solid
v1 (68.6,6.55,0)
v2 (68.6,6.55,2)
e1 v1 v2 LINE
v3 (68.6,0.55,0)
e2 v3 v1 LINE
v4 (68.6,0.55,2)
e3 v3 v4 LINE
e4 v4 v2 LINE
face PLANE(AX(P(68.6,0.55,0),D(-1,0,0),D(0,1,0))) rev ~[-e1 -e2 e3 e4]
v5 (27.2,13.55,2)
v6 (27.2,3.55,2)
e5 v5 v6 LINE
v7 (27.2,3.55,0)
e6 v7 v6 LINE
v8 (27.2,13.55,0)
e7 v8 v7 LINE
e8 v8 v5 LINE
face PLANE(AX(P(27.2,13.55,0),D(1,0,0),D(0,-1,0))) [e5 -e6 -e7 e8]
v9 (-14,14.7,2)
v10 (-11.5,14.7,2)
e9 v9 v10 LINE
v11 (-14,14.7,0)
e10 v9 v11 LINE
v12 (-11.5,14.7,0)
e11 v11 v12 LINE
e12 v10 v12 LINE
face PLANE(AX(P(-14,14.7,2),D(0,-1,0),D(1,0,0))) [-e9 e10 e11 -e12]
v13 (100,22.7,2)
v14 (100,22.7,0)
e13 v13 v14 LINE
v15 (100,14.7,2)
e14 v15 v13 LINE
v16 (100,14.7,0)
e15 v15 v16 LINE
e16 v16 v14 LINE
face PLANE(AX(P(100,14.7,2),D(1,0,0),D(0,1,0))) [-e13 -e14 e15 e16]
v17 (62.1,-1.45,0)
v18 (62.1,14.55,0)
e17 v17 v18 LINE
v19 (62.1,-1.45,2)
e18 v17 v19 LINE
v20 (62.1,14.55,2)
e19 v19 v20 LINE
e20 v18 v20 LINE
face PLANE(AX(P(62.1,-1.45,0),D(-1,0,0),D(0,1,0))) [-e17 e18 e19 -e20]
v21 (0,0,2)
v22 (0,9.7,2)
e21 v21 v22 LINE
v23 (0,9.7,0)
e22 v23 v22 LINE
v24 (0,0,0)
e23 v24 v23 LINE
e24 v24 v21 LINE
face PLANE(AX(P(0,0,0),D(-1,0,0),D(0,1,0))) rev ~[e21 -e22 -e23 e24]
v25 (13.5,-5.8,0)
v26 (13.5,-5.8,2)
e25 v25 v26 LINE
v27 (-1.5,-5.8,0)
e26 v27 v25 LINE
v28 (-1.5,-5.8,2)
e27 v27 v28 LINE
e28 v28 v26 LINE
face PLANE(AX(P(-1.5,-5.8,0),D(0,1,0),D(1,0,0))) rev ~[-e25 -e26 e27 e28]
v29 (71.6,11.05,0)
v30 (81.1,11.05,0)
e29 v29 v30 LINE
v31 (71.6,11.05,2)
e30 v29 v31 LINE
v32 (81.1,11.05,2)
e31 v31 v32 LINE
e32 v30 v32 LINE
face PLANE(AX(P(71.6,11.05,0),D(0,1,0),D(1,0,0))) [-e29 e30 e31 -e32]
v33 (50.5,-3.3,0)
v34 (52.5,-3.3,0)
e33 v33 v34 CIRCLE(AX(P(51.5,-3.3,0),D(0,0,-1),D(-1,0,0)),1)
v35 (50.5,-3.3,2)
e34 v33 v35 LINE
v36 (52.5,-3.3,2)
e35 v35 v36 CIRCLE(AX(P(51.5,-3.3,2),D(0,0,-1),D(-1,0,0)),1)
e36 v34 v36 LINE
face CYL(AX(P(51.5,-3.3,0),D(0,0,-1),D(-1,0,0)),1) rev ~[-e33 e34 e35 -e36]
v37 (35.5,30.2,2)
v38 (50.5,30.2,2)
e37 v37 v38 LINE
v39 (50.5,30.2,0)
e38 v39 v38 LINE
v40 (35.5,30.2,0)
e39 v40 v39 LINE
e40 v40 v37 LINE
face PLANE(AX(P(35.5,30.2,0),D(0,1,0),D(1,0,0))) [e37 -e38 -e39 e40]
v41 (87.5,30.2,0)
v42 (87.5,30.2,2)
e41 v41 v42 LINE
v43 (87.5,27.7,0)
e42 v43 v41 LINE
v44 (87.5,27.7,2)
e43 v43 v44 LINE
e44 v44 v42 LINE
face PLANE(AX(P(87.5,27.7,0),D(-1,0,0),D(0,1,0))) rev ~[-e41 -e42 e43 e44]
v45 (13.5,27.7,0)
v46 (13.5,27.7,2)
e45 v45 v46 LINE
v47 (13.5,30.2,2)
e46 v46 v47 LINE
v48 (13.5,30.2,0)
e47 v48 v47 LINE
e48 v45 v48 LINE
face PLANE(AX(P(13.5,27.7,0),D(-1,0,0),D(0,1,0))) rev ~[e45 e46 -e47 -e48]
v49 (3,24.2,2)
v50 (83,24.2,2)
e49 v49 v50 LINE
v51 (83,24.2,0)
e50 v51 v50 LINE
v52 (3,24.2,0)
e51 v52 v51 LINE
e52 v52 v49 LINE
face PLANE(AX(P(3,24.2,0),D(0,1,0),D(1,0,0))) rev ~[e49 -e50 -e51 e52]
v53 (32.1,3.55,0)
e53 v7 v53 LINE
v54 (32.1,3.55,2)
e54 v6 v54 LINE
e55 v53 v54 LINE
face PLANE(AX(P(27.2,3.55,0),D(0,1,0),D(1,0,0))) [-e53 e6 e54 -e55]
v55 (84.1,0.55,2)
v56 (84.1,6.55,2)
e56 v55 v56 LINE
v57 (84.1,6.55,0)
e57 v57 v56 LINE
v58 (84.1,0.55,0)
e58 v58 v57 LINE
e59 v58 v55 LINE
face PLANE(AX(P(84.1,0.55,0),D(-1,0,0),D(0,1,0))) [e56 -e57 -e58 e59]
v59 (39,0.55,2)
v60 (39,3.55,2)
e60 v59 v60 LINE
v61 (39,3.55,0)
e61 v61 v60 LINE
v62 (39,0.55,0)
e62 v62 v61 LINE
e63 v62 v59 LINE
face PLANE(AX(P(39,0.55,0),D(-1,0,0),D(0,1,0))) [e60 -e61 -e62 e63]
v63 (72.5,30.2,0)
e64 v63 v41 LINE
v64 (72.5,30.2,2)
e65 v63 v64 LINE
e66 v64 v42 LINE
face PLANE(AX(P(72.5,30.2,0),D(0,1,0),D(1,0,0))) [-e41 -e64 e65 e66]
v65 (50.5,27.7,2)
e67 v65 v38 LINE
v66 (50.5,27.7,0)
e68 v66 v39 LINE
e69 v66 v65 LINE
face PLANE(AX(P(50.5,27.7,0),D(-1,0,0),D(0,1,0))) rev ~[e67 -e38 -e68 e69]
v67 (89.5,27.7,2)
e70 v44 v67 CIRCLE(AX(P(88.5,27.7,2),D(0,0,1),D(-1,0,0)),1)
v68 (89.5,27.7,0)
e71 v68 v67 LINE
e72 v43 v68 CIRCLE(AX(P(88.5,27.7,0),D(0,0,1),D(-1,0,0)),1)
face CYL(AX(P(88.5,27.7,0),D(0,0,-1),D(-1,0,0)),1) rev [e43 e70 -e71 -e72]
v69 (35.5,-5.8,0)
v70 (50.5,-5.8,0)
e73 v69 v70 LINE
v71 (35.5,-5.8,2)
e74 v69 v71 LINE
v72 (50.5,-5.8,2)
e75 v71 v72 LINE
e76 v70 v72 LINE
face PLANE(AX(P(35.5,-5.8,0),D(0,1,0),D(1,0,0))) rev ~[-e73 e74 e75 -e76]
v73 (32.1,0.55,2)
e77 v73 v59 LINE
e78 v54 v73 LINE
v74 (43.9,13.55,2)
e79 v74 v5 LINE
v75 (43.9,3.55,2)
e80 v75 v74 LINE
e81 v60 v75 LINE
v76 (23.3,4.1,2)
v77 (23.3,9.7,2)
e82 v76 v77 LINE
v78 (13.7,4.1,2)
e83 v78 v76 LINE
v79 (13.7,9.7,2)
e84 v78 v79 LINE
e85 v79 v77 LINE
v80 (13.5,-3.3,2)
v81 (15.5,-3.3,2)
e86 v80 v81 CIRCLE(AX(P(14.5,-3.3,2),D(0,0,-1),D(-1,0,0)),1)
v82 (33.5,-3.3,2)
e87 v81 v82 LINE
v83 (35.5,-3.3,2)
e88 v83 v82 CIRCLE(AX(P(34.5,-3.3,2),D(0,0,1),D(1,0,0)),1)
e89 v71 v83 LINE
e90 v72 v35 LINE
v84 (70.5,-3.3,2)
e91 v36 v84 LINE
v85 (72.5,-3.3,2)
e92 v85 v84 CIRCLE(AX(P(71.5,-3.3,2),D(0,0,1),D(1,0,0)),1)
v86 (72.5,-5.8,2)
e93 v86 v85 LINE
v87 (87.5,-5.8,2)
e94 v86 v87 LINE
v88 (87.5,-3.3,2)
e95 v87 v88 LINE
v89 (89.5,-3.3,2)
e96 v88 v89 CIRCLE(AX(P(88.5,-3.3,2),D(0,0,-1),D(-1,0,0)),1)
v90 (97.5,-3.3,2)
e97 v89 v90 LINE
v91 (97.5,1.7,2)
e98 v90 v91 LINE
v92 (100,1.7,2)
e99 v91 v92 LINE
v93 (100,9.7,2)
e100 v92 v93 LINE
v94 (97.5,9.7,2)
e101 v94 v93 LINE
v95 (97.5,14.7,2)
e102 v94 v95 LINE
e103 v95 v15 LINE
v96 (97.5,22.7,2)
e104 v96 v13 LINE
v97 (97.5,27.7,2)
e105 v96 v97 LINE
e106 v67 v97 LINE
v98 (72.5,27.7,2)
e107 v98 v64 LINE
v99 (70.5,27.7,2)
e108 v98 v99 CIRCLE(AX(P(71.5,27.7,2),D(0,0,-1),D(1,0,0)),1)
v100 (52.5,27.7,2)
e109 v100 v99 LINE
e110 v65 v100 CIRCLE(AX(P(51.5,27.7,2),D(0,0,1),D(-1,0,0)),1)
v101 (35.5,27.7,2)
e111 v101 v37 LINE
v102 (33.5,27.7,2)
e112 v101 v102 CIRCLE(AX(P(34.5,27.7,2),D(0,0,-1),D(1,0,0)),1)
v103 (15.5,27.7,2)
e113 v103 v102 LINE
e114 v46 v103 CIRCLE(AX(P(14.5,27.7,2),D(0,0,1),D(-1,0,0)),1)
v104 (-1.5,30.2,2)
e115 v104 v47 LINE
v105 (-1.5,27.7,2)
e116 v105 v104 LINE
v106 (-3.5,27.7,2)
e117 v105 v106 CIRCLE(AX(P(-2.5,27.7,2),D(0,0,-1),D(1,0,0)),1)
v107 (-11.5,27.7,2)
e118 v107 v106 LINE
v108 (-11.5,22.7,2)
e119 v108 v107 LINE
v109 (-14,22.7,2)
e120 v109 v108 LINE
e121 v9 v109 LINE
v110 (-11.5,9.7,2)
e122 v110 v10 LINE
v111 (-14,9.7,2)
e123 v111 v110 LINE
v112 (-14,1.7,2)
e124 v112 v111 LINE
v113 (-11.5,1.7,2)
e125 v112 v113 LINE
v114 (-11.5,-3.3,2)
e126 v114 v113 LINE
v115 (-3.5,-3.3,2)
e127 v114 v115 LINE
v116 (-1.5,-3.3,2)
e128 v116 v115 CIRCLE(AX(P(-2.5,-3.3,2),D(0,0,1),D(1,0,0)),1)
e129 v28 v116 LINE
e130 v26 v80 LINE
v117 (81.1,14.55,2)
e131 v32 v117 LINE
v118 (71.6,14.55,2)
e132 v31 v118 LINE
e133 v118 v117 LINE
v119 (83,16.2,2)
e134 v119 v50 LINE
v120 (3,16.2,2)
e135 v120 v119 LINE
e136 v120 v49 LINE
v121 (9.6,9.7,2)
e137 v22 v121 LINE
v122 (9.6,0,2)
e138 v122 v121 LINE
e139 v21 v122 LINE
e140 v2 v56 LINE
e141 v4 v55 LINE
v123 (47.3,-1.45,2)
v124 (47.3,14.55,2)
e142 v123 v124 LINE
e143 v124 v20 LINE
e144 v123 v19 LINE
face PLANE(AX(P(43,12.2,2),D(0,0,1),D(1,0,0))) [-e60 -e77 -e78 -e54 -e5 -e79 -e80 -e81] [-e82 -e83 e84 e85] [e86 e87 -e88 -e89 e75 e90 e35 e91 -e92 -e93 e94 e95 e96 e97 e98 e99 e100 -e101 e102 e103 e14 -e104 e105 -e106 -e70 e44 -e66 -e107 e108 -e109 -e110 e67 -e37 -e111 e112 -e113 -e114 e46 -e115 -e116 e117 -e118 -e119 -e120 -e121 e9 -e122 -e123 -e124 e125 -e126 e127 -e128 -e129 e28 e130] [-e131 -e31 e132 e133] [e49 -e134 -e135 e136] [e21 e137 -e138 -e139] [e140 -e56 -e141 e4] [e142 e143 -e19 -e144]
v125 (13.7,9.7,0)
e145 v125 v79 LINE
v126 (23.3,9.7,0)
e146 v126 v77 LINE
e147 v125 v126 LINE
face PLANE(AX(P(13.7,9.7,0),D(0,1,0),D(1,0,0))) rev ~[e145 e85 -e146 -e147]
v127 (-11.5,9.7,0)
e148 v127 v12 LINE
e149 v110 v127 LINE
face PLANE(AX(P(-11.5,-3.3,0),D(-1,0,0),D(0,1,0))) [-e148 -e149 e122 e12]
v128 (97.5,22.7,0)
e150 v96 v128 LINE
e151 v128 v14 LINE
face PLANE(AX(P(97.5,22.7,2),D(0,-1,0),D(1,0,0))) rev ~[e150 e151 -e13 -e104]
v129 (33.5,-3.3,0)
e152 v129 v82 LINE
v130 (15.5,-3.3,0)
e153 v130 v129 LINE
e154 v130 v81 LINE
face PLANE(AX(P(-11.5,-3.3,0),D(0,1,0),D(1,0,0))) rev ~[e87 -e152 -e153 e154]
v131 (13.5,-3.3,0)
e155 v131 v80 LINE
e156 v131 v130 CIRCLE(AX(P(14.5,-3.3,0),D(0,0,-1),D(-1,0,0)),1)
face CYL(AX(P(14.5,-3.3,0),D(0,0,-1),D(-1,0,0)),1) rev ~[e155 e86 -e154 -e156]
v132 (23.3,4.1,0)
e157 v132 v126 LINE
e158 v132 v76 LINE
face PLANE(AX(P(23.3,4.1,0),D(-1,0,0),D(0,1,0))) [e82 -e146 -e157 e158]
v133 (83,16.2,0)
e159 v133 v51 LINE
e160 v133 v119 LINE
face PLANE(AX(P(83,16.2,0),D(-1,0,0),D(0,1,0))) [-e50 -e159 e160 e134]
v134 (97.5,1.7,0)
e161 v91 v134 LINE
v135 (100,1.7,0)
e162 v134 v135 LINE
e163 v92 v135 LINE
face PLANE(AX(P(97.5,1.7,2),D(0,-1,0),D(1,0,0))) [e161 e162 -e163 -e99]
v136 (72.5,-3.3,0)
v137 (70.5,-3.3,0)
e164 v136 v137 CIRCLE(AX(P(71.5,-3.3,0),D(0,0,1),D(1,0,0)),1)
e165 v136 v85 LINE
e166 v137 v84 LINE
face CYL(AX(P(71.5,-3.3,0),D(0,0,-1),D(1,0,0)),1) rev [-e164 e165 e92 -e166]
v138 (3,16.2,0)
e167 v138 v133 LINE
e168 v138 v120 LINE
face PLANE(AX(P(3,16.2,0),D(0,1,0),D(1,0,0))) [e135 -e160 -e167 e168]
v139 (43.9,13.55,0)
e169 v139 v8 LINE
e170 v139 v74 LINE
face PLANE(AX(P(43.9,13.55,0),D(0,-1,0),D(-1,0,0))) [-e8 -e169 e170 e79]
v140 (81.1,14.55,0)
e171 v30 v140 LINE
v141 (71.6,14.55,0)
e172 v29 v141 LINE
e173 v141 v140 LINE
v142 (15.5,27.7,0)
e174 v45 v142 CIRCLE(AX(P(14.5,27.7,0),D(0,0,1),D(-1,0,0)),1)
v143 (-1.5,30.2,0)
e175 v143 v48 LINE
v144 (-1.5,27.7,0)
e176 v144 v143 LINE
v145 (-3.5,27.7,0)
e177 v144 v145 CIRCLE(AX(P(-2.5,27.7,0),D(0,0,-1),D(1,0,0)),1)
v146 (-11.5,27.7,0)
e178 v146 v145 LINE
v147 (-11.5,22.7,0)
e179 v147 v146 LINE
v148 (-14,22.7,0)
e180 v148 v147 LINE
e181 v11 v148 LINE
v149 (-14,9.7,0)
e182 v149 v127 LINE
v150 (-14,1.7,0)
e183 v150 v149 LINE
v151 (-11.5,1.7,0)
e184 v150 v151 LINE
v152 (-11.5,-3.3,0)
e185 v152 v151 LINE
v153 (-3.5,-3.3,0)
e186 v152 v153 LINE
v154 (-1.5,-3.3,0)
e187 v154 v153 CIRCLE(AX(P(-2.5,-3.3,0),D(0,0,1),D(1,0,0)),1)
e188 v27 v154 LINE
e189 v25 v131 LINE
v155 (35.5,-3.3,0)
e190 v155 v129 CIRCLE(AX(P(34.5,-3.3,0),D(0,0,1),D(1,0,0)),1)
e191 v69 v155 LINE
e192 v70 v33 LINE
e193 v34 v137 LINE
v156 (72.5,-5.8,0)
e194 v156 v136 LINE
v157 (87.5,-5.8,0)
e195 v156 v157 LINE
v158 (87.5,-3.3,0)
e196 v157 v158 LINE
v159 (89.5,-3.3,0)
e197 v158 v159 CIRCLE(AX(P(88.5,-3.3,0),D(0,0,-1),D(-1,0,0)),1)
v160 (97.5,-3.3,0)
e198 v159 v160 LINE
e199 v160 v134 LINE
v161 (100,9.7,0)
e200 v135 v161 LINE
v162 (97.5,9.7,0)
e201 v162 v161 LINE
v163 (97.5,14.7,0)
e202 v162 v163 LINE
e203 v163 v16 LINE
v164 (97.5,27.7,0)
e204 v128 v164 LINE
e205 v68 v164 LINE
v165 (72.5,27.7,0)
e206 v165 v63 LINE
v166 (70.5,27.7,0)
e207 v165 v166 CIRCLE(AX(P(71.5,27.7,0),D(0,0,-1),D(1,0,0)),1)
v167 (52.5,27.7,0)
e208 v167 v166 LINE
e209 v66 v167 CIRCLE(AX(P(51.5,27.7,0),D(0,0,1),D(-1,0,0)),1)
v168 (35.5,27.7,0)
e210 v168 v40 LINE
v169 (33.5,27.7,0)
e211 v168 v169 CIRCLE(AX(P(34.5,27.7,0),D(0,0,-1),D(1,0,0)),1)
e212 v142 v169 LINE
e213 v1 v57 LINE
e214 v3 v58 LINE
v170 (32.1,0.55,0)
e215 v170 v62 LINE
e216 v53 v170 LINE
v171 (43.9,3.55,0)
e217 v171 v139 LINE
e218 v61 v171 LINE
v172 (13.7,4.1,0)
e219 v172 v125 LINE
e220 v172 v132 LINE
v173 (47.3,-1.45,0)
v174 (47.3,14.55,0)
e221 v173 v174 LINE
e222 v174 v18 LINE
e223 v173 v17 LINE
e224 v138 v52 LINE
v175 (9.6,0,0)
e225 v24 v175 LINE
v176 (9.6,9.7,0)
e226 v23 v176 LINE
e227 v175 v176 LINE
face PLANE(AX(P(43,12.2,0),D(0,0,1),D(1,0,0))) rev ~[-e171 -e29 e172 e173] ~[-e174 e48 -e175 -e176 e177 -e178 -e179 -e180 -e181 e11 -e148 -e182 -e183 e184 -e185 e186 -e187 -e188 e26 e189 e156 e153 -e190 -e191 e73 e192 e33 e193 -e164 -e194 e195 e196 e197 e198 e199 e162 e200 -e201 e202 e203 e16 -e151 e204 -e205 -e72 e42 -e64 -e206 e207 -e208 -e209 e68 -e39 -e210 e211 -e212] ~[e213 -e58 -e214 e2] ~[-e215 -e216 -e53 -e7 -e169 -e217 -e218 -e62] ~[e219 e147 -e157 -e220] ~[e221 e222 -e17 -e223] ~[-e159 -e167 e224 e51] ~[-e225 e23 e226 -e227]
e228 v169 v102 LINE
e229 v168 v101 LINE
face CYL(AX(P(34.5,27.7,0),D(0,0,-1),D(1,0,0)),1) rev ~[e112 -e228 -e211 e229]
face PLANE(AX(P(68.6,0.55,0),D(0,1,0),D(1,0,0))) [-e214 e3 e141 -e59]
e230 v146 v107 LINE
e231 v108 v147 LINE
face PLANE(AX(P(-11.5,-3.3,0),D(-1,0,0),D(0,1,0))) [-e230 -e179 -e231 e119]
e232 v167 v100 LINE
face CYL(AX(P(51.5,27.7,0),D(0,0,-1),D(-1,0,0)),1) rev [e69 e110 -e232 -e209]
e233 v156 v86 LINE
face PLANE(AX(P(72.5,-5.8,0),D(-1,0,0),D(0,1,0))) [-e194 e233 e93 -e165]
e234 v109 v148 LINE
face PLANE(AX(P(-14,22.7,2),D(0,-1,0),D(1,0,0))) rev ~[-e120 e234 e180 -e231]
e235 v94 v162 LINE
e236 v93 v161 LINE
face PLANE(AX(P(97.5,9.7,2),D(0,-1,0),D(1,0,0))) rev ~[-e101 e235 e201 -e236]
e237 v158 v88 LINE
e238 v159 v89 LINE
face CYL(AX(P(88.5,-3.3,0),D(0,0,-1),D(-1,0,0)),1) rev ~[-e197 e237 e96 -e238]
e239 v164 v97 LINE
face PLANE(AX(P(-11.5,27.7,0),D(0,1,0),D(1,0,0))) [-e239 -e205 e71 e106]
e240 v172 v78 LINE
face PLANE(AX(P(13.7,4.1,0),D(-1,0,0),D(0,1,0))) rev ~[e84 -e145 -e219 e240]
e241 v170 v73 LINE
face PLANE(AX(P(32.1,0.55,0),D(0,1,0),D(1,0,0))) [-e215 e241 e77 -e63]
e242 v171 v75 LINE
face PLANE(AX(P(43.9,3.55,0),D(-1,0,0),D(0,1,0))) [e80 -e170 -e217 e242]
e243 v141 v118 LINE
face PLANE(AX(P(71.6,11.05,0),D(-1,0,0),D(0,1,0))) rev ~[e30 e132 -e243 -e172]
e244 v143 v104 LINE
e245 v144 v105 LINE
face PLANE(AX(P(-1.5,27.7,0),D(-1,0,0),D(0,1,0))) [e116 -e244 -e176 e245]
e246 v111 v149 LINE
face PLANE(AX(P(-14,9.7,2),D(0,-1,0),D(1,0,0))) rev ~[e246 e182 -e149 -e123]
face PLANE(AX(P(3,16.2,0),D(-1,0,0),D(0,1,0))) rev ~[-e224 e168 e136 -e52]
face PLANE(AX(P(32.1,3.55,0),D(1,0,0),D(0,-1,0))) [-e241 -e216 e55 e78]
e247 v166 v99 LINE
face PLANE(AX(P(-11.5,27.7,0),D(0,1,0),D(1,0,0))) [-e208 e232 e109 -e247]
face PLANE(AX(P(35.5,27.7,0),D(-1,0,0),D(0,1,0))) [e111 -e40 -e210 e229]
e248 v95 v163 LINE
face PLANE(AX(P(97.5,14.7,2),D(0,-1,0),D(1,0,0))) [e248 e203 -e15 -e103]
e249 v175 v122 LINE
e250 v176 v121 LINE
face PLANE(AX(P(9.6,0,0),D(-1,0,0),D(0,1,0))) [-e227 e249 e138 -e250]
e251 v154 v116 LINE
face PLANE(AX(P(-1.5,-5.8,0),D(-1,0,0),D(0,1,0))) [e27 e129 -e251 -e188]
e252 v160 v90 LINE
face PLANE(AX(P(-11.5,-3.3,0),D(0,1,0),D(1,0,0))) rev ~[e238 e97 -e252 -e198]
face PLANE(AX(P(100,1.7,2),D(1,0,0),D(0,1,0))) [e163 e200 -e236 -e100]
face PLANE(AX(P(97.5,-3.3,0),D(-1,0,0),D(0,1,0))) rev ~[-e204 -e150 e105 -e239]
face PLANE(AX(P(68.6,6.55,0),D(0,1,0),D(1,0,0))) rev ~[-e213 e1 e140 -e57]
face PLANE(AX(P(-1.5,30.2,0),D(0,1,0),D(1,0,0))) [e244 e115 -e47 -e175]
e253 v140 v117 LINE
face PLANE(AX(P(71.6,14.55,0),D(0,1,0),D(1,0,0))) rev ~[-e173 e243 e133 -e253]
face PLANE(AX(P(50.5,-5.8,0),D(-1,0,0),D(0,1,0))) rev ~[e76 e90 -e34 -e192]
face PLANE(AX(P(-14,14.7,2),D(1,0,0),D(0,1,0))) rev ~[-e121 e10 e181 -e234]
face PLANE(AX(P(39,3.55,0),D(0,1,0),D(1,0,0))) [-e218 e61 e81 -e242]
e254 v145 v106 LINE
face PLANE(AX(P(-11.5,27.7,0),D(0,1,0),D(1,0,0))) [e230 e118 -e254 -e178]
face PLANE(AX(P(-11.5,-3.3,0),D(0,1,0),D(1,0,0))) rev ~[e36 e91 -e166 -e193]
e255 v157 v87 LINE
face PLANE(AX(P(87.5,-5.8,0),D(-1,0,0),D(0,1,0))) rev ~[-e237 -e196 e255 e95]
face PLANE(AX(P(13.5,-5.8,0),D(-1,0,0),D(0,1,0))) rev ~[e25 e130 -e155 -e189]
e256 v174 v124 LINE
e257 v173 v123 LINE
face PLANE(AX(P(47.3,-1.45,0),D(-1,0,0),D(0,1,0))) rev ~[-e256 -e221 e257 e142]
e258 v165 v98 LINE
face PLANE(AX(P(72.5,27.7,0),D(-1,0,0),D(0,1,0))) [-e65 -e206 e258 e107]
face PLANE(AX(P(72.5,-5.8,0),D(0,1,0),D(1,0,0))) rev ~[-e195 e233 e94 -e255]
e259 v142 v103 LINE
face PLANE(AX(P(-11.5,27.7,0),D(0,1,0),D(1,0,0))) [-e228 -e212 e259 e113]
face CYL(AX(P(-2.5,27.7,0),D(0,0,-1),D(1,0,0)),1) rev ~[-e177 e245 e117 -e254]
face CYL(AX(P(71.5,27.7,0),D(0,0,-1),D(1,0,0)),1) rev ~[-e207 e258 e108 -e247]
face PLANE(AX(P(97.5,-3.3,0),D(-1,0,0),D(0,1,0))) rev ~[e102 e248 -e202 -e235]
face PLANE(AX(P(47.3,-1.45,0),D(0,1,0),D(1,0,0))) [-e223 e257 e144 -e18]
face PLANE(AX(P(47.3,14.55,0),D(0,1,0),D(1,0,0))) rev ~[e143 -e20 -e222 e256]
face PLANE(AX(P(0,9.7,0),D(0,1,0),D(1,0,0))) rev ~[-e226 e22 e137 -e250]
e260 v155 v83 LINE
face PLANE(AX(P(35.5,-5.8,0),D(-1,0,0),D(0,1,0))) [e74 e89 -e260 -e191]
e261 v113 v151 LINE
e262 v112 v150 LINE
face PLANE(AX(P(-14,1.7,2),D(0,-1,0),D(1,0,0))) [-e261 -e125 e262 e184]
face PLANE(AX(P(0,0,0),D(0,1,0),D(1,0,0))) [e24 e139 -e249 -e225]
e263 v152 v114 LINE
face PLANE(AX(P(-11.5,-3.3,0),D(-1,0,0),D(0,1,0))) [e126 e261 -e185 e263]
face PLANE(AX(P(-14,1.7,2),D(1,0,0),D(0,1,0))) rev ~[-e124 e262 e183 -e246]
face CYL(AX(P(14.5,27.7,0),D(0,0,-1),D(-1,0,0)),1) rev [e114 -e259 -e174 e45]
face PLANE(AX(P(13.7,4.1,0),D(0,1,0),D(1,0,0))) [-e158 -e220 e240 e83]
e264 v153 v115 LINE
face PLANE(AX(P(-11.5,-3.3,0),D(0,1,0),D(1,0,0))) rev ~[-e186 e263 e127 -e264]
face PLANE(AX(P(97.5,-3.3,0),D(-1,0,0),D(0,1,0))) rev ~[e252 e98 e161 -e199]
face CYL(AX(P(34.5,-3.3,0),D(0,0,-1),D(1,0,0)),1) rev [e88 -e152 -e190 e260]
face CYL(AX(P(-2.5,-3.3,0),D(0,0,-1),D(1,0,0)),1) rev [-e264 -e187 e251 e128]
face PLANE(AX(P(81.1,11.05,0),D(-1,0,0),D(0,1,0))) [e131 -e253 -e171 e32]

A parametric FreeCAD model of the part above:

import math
import FreeCAD as App
import Part
import Sketcher

V = App.Vector

doc = App.newDocument("Part")
body = doc.addObject("PartDesign::Body", "Body")

# Sketch on XY plane
sketch1 = body.newObject("Sketcher::SketchObject", "Sketch")
sketch1.AttachmentSupport = (doc.getObject("XY_Plane"), [""])
sketch1.MapMode = "FlatFace"
sketch1.addGeometry(Part.LineSegment(V(-11.5, 27.7, 0), V(-11.5, -3.3, 0)), False)
sketch1.addGeometry(Part.LineSegment(V(-11.5, -3.3, 0), V(97.5, -3.3, 0)), False)
sketch1.addGeometry(Part.LineSegment(V(97.5, -3.3, 0), V(97.5, 27.7, 0)), False)
sketch1.addGeometry(Part.LineSegment(V(97.5, 27.7, 0), V(-11.5, 27.7, 0)), False)
sketch1.addGeometry(Part.LineSegment(V(9.6, 0, 0), V(0, 0, 0)), False)
sketch1.addGeometry(Part.LineSegment(V(0, 0, 0), V(0, 9.7, 0)), False)
sketch1.addGeometry(Part.LineSegment(V(0, 9.7, 0), V(9.6, 9.7, 0)), False)
sketch1.addGeometry(Part.LineSegment(V(9.6, 9.7, 0), V(9.6, 0, 0)), False)
sketch1.addGeometry(Part.LineSegment(V(23.3, 4.1, 0), V(13.7, 4.1, 0)), False)
sketch1.addGeometry(Part.LineSegment(V(13.7, 4.1, 0), V(13.7, 9.7, 0)), False)
sketch1.addGeometry(Part.LineSegment(V(13.7, 9.7, 0), V(23.3, 9.7, 0)), False)
sketch1.addGeometry(Part.LineSegment(V(23.3, 9.7, 0), V(23.3, 4.1, 0)), False)
sketch1.addGeometry(Part.LineSegment(V(32.1, 3.5, 0), V(27.2, 3.5, 0)), False)
sketch1.addGeometry(Part.LineSegment(V(27.2, 3.5, 0), V(27.2, 13.6, 0)), False)
sketch1.addGeometry(Part.LineSegment(V(27.2, 13.6, 0), V(43.9, 13.6, 0)), False)
sketch1.addGeometry(Part.LineSegment(V(43.9, 13.6, 0), V(43.9, 3.5, 0)), False)
sketch1.addGeometry(Part.LineSegment(V(43.9, 3.5, 0), V(39, 3.5, 0)), False)
sketch1.addGeometry(Part.LineSegment(V(39, 3.5, 0), V(39, 0.6, 0)), False)
sketch1.addGeometry(Part.LineSegment(V(39, 0.6, 0), V(32.1, 0.6, 0)), False)
sketch1.addGeometry(Part.LineSegment(V(32.1, 0.6, 0), V(32.1, 3.5, 0)), False)
sketch1.addGeometry(Part.LineSegment(V(84.1, 0.6, 0), V(68.6, 0.6, 0)), False)
sketch1.addGeometry(Part.LineSegment(V(68.6, 0.6, 0), V(68.6, 6.5, 0)), False)
sketch1.addGeometry(Part.LineSegment(V(68.6, 6.5, 0), V(84.1, 6.5, 0)), False)
sketch1.addGeometry(Part.LineSegment(V(84.1, 6.5, 0), V(84.1, 0.6, 0)), False)
sketch1.addGeometry(Part.LineSegment(V(62.1, -1.4, 0), V(47.3, -1.4, 0)), False)
sketch1.addGeometry(Part.LineSegment(V(47.3, -1.4, 0), V(47.3, 14.6, 0)), False)
sketch1.addGeometry(Part.LineSegment(V(47.3, 14.6, 0), V(62.1, 14.6, 0)), False)
sketch1.addGeometry(Part.LineSegment(V(62.1, 14.6, 0), V(62.1, -1.4, 0)), False)
sketch1.addGeometry(Part.LineSegment(V(81.1, 11.1, 0), V(71.6, 11.1, 0)), False)
sketch1.addGeometry(Part.LineSegment(V(71.6, 11.1, 0), V(71.6, 14.6, 0)), False)
sketch1.addGeometry(Part.LineSegment(V(71.6, 14.6, 0), V(81.1, 14.6, 0)), False)
sketch1.addGeometry(Part.LineSegment(V(81.1, 14.6, 0), V(81.1, 11.1, 0)), False)
sketch1.addGeometry(Part.LineSegment(V(83, 16.2, 0), V(3, 16.2, 0)), False)
sketch1.addGeometry(Part.LineSegment(V(3, 16.2, 0), V(3, 24.2, 0)), False)
sketch1.addGeometry(Part.LineSegment(V(3, 24.2, 0), V(83, 24.2, 0)), False)
sketch1.addGeometry(Part.LineSegment(V(83, 24.2, 0), V(83, 16.2, 0)), False)
sketch1.addConstraint(Sketcher.Constraint("Coincident", 0, 2, 1, 1))
sketch1.addConstraint(Sketcher.Constraint("Coincident", 1, 2, 2, 1))
sketch1.addConstraint(Sketcher.Constraint("Coincident", 2, 2, 3, 1))
sketch1.addConstraint(Sketcher.Constraint("Coincident", 3, 2, 0, 1))
sketch1.addConstraint(Sketcher.Constraint("Coincident", 4, 2, 5, 1))
sketch1.addConstraint(Sketcher.Constraint("Coincident", 5, 2, 6, 1))
sketch1.addConstraint(Sketcher.Constraint("Coincident", 6, 2, 7, 1))
sketch1.addConstraint(Sketcher.Constraint("Coincident", 7, 2, 4, 1))
sketch1.addConstraint(Sketcher.Constraint("Coincident", 8, 2, 9, 1))
sketch1.addConstraint(Sketcher.Constraint("Coincident", 9, 2, 10, 1))
sketch1.addConstraint(Sketcher.Constraint("Coincident", 10, 2, 11, 1))
sketch1.addConstraint(Sketcher.Constraint("Coincident", 11, 2, 8, 1))
sketch1.addConstraint(Sketcher.Constraint("Coincident", 12, 2, 13, 1))
sketch1.addConstraint(Sketcher.Constraint("Coincident", 13, 2, 14, 1))
sketch1.addConstraint(Sketcher.Constraint("Coincident", 14, 2, 15, 1))
sketch1.addConstraint(Sketcher.Constraint("Coincident", 15, 2, 16, 1))
sketch1.addConstraint(Sketcher.Constraint("Coincident", 16, 2, 17, 1))
sketch1.addConstraint(Sketcher.Constraint("Coincident", 17, 2, 18, 1))
sketch1.addConstraint(Sketcher.Constraint("Coincident", 18, 2, 19, 1))
sketch1.addConstraint(Sketcher.Constraint("Coincident", 19, 2, 12, 1))
sketch1.addConstraint(Sketcher.Constraint("Coincident", 20, 2, 21, 1))
sketch1.addConstraint(Sketcher.Constraint("Coincident", 21, 2, 22, 1))
sketch1.addConstraint(Sketcher.Constraint("Coincident", 22, 2, 23, 1))
sketch1.addConstraint(Sketcher.Constraint("Coincident", 23, 2, 20, 1))
sketch1.addConstraint(Sketcher.Constraint("Coincident", 24, 2, 25, 1))
sketch1.addConstraint(Sketcher.Constraint("Coincident", 25, 2, 26, 1))
sketch1.addConstraint(Sketcher.Constraint("Coincident", 26, 2, 27, 1))
sketch1.addConstraint(Sketcher.Constraint("Coincident", 27, 2, 24, 1))
sketch1.addConstraint(Sketcher.Constraint("Coincident", 28, 2, 29, 1))
sketch1.addConstraint(Sketcher.Constraint("Coincident", 29, 2, 30, 1))
sketch1.addConstraint(Sketcher.Constraint("Coincident", 30, 2, 31, 1))
sketch1.addConstraint(Sketcher.Constraint("Coincident", 31, 2, 28, 1))
sketch1.addConstraint(Sketcher.Constraint("Coincident", 32, 2, 33, 1))
sketch1.addConstraint(Sketcher.Constraint("Coincident", 33, 2, 34, 1))
sketch1.addConstraint(Sketcher.Constraint("Coincident", 34, 2, 35, 1))
sketch1.addConstraint(Sketcher.Constraint("Coincident", 35, 2, 32, 1))
sketch1.addConstraint(Sketcher.Constraint("Vertical", 0))
sketch1.addConstraint(Sketcher.Constraint("Horizontal", 1))
sketch1.addConstraint(Sketcher.Constraint("Vertical", 2))
sketch1.addConstraint(Sketcher.Constraint("Horizontal", 3))
sketch1.addConstraint(Sketcher.Constraint("Horizontal", 4))
sketch1.addConstraint(Sketcher.Constraint("Vertical", 5))
sketch1.addConstraint(Sketcher.Constraint("Horizontal", 6))
sketch1.addConstraint(Sketcher.Constraint("Vertical", 7))
sketch1.addConstraint(Sketcher.Constraint("Horizontal", 8))
sketch1.addConstraint(Sketcher.Constraint("Vertical", 9))
sketch1.addConstraint(Sketcher.Constraint("Horizontal", 10))
sketch1.addConstraint(Sketcher.Constraint("Vertical", 11))
sketch1.addConstraint(Sketcher.Constraint("Horizontal", 12))
sketch1.addConstraint(Sketcher.Constraint("Vertical", 13))
sketch1.addConstraint(Sketcher.Constraint("Horizontal", 14))
sketch1.addConstraint(Sketcher.Constraint("Vertical", 15))
sketch1.addConstraint(Sketcher.Constraint("Horizontal", 16))
sketch1.addConstraint(Sketcher.Constraint("Vertical", 17))
sketch1.addConstraint(Sketcher.Constraint("Horizontal", 18))
sketch1.addConstraint(Sketcher.Constraint("Vertical", 19))
sketch1.addConstraint(Sketcher.Constraint("Horizontal", 20))
sketch1.addConstraint(Sketcher.Constraint("Vertical", 21))
sketch1.addConstraint(Sketcher.Constraint("Horizontal", 22))
sketch1.addConstraint(Sketcher.Constraint("Vertical", 23))
sketch1.addConstraint(Sketcher.Constraint("Horizontal", 24))
sketch1.addConstraint(Sketcher.Constraint("Vertical", 25))
sketch1.addConstraint(Sketcher.Constraint("Horizontal", 26))
sketch1.addConstraint(Sketcher.Constraint("Vertical", 27))
sketch1.addConstraint(Sketcher.Constraint("Horizontal", 28))
sketch1.addConstraint(Sketcher.Constraint("Vertical", 29))
sketch1.addConstraint(Sketcher.Constraint("Horizontal", 30))
sketch1.addConstraint(Sketcher.Constraint("Vertical", 31))
sketch1.addConstraint(Sketcher.Constraint("Horizontal", 32))
sketch1.addConstraint(Sketcher.Constraint("Vertical", 33))
sketch1.addConstraint(Sketcher.Constraint("Horizontal", 34))
sketch1.addConstraint(Sketcher.Constraint("Vertical", 35))
sketch1.addConstraint(Sketcher.Constraint("Coincident", 4, 2, -1, 1))
sketch1.addConstraint(Sketcher.Constraint("Horizontal", 6, 2, 9, 2))
sketch1.addConstraint(Sketcher.Constraint("Horizontal", 12, 2, 15, 2))
sketch1.addConstraint(Sketcher.Constraint("Horizontal", 18, 2, 20, 2))
sketch1.addConstraint(Sketcher.Constraint("Horizontal", 26, 2, 29, 2))
sketch1.addConstraint(Sketcher.Constraint("Equal", 6, 8))
sketch1.addConstraint(Sketcher.Constraint("Equal", 12, 16))
sketch1.addConstraint(Sketcher.Constraint("DistanceX", 1, 1, 1, 2, 109.0))
sketch1.addConstraint(Sketcher.Constraint("DistanceX", 32, 2, 32, 1, 80.0))
sketch1.addConstraint(Sketcher.Constraint("DistanceY", 0, 2, 0, 1, 31.0))
sketch1.addConstraint(Sketcher.Constraint("DistanceY", 13, 1, 13, 2, 10.0))
sketch1.addConstraint(Sketcher.Constraint("DistanceY", 17, 2, 17, 1, 3.0))
sketch1.addConstraint(Sketcher.Constraint("DistanceY", 21, 1, 21, 2, 6.0))
sketch1.addConstraint(Sketcher.Constraint("DistanceY", 25, 1, 25, 2, 16.0))
sketch1.addConstraint(Sketcher.Constraint("DistanceY", 33, 1, 33, 2, 8.0))
sketch1.addConstraint(Sketcher.Constraint("DistanceX", 4, 2, 4, 1, 9.6))
sketch1.addConstraint(Sketcher.Constraint("DistanceX", 12, 2, 12, 1, 4.9))
sketch1.addConstraint(Sketcher.Constraint("DistanceX", 14, 1, 14, 2, 16.7))
sketch1.addConstraint(Sketcher.Constraint("DistanceX", 20, 2, 20, 1, 15.5))
sketch1.addConstraint(Sketcher.Constraint("DistanceX", 24, 2, 24, 1, 14.8))
sketch1.addConstraint(Sketcher.Constraint("DistanceX", 28, 2, 28, 1, 9.5))
sketch1.addConstraint(Sketcher.Constraint("DistanceY", 5, 1, 5, 2, 9.7))
sketch1.addConstraint(Sketcher.Constraint("DistanceY", 9, 1, 9, 2, 5.6))
sketch1.addConstraint(Sketcher.Constraint("DistanceY", 29, 1, 29, 2, 3.5))
sketch1.addConstraint(Sketcher.Constraint("DistanceX", -1, 1, 16, 2, 39.0))
sketch1.addConstraint(Sketcher.Constraint("DistanceX", -1, 1, 32, 2, 3.0))
sketch1.addConstraint(Sketcher.Constraint("DistanceY", 0, 2, 5, 2, 13.0))
sketch1.addConstraint(Sketcher.Constraint("DistanceY", 24, 2, 15, 2, 5.0))
sketch1.addConstraint(Sketcher.Constraint("DistanceX", 21, 2, 28, 2, 3.0))
sketch1.addConstraint(Sketcher.Constraint("DistanceX", 0, 2, -1, 1, 11.5))
sketch1.addConstraint(Sketcher.Constraint("DistanceX", -1, 1, 8, 2, 13.7))
sketch1.addConstraint(Sketcher.Constraint("DistanceX", -1, 1, 20, 2, 68.6))
sketch1.addConstraint(Sketcher.Constraint("DistanceX", -1, 1, 24, 2, 47.3))
sketch1.addConstraint(Sketcher.Constraint("DistanceY", -1, 1, 32, 2, 16.2))
sketch1.addConstraint(Sketcher.Constraint("DistanceY", -1, 1, 12, 2, 3.55))
pad1 = body.newObject("PartDesign::Pad", "Pad")
pad1.Profile = sketch1
pad1.Length = 2

# Sketch on XY plane
sketch2 = body.newObject("Sketcher::SketchObject", "Sketch001")
sketch2.AttachmentSupport = (doc.getObject("XY_Plane"), [""])
sketch2.MapMode = "FlatFace"
sketch2.AttachmentOffset = App.Placement(V(0, 0, 2), App.Rotation())
sketch2.addGeometry(Part.LineSegment(V(-14, 22.7, 0), V(-14, 14.7, 0)), False)
sketch2.addGeometry(Part.LineSegment(V(-14, 14.7, 0), V(-11.5, 14.7, 0)), False)
sketch2.addGeometry(Part.LineSegment(V(-11.5, 14.7, 0), V(-11.5, 22.7, 0)), False)
sketch2.addGeometry(Part.LineSegment(V(-11.5, 22.7, 0), V(-14, 22.7, 0)), False)
sketch2.addGeometry(Part.LineSegment(V(-14, 9.7, 0), V(-14, 1.7, 0)), False)
sketch2.addGeometry(Part.LineSegment(V(-14, 1.7, 0), V(-11.5, 1.7, 0)), False)
sketch2.addGeometry(Part.LineSegment(V(-11.5, 1.7, 0), V(-11.5, 9.7, 0)), False)
sketch2.addGeometry(Part.LineSegment(V(-11.5, 9.7, 0), V(-14, 9.7, 0)), False)
sketch2.addGeometry(Part.LineSegment(V(97.5, 9.7, 0), V(97.5, 1.7, 0)), False)
sketch2.addGeometry(Part.LineSegment(V(97.5, 1.7, 0), V(100, 1.7, 0)), False)
sketch2.addGeometry(Part.LineSegment(V(100, 1.7, 0), V(100, 9.7, 0)), False)
sketch2.addGeometry(Part.LineSegment(V(100, 9.7, 0), V(97.5, 9.7, 0)), False)
sketch2.addGeometry(Part.LineSegment(V(97.5, 22.7, 0), V(97.5, 14.7, 0)), False)
sketch2.addGeometry(Part.LineSegment(V(97.5, 14.7, 0), V(100, 14.7, 0)), False)
sketch2.addGeometry(Part.LineSegment(V(100, 14.7, 0), V(100, 22.7, 0)), False)
sketch2.addGeometry(Part.LineSegment(V(100, 22.7, 0), V(97.5, 22.7, 0)), False)
sketch2.addConstraint(Sketcher.Constraint("Coincident", 0, 2, 1, 1))
sketch2.addConstraint(Sketcher.Constraint("Coincident", 1, 2, 2, 1))
sketch2.addConstraint(Sketcher.Constraint("Coincident", 2, 2, 3, 1))
sketch2.addConstraint(Sketcher.Constraint("Coincident", 3, 2, 0, 1))
sketch2.addConstraint(Sketcher.Constraint("Coincident", 4, 2, 5, 1))
sketch2.addConstraint(Sketcher.Constraint("Coincident", 5, 2, 6, 1))
sketch2.addConstraint(Sketcher.Constraint("Coincident", 6, 2, 7, 1))
sketch2.addConstraint(Sketcher.Constraint("Coincident", 7, 2, 4, 1))
sketch2.addConstraint(Sketcher.Constraint("Coincident", 8, 2, 9, 1))
sketch2.addConstraint(Sketcher.Constraint("Coincident", 9, 2, 10, 1))
sketch2.addConstraint(Sketcher.Constraint("Coincident", 10, 2, 11, 1))
sketch2.addConstraint(Sketcher.Constraint("Coincident", 11, 2, 8, 1))
sketch2.addConstraint(Sketcher.Constraint("Coincident", 12, 2, 13, 1))
sketch2.addConstraint(Sketcher.Constraint("Coincident", 13, 2, 14, 1))
sketch2.addConstraint(Sketcher.Constraint("Coincident", 14, 2, 15, 1))
sketch2.addConstraint(Sketcher.Constraint("Coincident", 15, 2, 12, 1))
sketch2.addConstraint(Sketcher.Constraint("Vertical", 0))
sketch2.addConstraint(Sketcher.Constraint("Horizontal", 1))
sketch2.addConstraint(Sketcher.Constraint("Vertical", 2))
sketch2.addConstraint(Sketcher.Constraint("Horizontal", 3))
sketch2.addConstraint(Sketcher.Constraint("Vertical", 4))
sketch2.addConstraint(Sketcher.Constraint("Horizontal", 5))
sketch2.addConstraint(Sketcher.Constraint("Vertical", 6))
sketch2.addConstraint(Sketcher.Constraint("Horizontal", 7))
sketch2.addConstraint(Sketcher.Constraint("Vertical", 8))
sketch2.addConstraint(Sketcher.Constraint("Horizontal", 9))
sketch2.addConstraint(Sketcher.Constraint("Vertical", 10))
sketch2.addConstraint(Sketcher.Constraint("Horizontal", 11))
sketch2.addConstraint(Sketcher.Constraint("Vertical", 12))
sketch2.addConstraint(Sketcher.Constraint("Horizontal", 13))
sketch2.addConstraint(Sketcher.Constraint("Vertical", 14))
sketch2.addConstraint(Sketcher.Constraint("Horizontal", 15))
sketch2.addConstraint(Sketcher.Constraint("Horizontal", 5, 2, 8, 2))
sketch2.addConstraint(Sketcher.Constraint("Horizontal", 7, 2, 10, 2))
sketch2.addConstraint(Sketcher.Constraint("Horizontal", 1, 2, 12, 2))
sketch2.addConstraint(Sketcher.Constraint("Horizontal", 3, 2, 14, 2))
sketch2.addConstraint(Sketcher.Constraint("Vertical", 3, 2, 4, 2))
sketch2.addConstraint(Sketcher.Constraint("Vertical", 2, 2, 5, 2))
sketch2.addConstraint(Sketcher.Constraint("Vertical", 11, 2, 12, 2))
sketch2.addConstraint(Sketcher.Constraint("Vertical", 10, 2, 13, 2))
sketch2.addConstraint(Sketcher.Constraint("Equal", 7, 9))
sketch2.addConstraint(Sketcher.Constraint("Equal", 2, 4))
sketch2.addConstraint(Sketcher.Constraint("DistanceY", 0, 2, 0, 1, 8.0))
sketch2.addConstraint(Sketcher.Constraint("DistanceX", 1, 1, 1, 2, 2.5))
sketch2.addConstraint(Sketcher.Constraint("DistanceX", 0, 2, -1, 1, 14.0))
sketch2.addConstraint(Sketcher.Constraint("DistanceX", -1, 1, 9, 2, 100.0))
sketch2.addConstraint(Sketcher.Constraint("DistanceY", 4, 2, 0, 2, 13.0))
sketch2.addConstraint(Sketcher.Constraint("DistanceY", -1, 1, 0, 2, 14.7))
pad2 = body.newObject("PartDesign::Pad", "Pad001")
pad2.Profile = sketch2
pad2.Length = 2
pad2.Reversed = True

# Sketch on XY plane
sketch3 = body.newObject("Sketcher::SketchObject", "Sketch002")
sketch3.AttachmentSupport = (doc.getObject("XY_Plane"), [""])
sketch3.MapMode = "FlatFace"
sketch3.addGeometry(Part.LineSegment(V(-1.5, 30.2, 0), V(-1.5, 27.7, 0)), False)
sketch3.addGeometry(Part.LineSegment(V(-1.5, 27.7, 0), V(13.5, 27.7, 0)), False)
sketch3.addGeometry(Part.LineSegment(V(13.5, 27.7, 0), V(13.5, 30.2, 0)), False)
sketch3.addGeometry(Part.LineSegment(V(13.5, 30.2, 0), V(-1.5, 30.2, 0)), False)
sketch3.addGeometry(Part.LineSegment(V(35.5, 30.2, 0), V(35.5, 27.7, 0)), False)
sketch3.addGeometry(Part.LineSegment(V(35.5, 27.7, 0), V(50.5, 27.7, 0)), False)
sketch3.addGeometry(Part.LineSegment(V(50.5, 27.7, 0), V(50.5, 30.2, 0)), False)
sketch3.addGeometry(Part.LineSegment(V(50.5, 30.2, 0), V(35.5, 30.2, 0)), False)
sketch3.addGeometry(Part.LineSegment(V(72.5, 30.2, 0), V(72.5, 27.7, 0)), False)
sketch3.addGeometry(Part.LineSegment(V(72.5, 27.7, 0), V(87.5, 27.7, 0)), False)
sketch3.addGeometry(Part.LineSegment(V(87.5, 27.7, 0), V(87.5, 30.2, 0)), False)
sketch3.addGeometry(Part.LineSegment(V(87.5, 30.2, 0), V(72.5, 30.2, 0)), False)
sketch3.addGeometry(Part.LineSegment(V(72.5, -3.3, 0), V(72.5, -5.8, 0)), False)
sketch3.addGeometry(Part.LineSegment(V(72.5, -5.8, 0), V(87.5, -5.8, 0)), False)
sketch3.addGeometry(Part.LineSegment(V(87.5, -5.8, 0), V(87.5, -3.3, 0)), False)
sketch3.addGeometry(Part.LineSegment(V(87.5, -3.3, 0), V(72.5, -3.3, 0)), False)
sketch3.addGeometry(Part.LineSegment(V(35.5, -3.3, 0), V(35.5, -5.8, 0)), False)
sketch3.addGeometry(Part.LineSegment(V(35.5, -5.8, 0), V(50.5, -5.8, 0)), False)
sketch3.addGeometry(Part.LineSegment(V(50.5, -5.8, 0), V(50.5, -3.3, 0)), False)
sketch3.addGeometry(Part.LineSegment(V(50.5, -3.3, 0), V(35.5, -3.3, 0)), False)
sketch3.addGeometry(Part.LineSegment(V(-1.5, -3.3, 0), V(-1.5, -5.8, 0)), False)
sketch3.addGeometry(Part.LineSegment(V(-1.5, -5.8, 0), V(13.5, -5.8, 0)), False)
sketch3.addGeometry(Part.LineSegment(V(13.5, -5.8, 0), V(13.5, -3.3, 0)), False)
sketch3.addGeometry(Part.LineSegment(V(13.5, -3.3, 0), V(-1.5, -3.3, 0)), False)
sketch3.addConstraint(Sketcher.Constraint("Coincident", 0, 2, 1, 1))
sketch3.addConstraint(Sketcher.Constraint("Coincident", 1, 2, 2, 1))
sketch3.addConstraint(Sketcher.Constraint("Coincident", 2, 2, 3, 1))
sketch3.addConstraint(Sketcher.Constraint("Coincident", 3, 2, 0, 1))
sketch3.addConstraint(Sketcher.Constraint("Coincident", 4, 2, 5, 1))
sketch3.addConstraint(Sketcher.Constraint("Coincident", 5, 2, 6, 1))
sketch3.addConstraint(Sketcher.Constraint("Coincident", 6, 2, 7, 1))
sketch3.addConstraint(Sketcher.Constraint("Coincident", 7, 2, 4, 1))
sketch3.addConstraint(Sketcher.Constraint("Coincident", 8, 2, 9, 1))
sketch3.addConstraint(Sketcher.Constraint("Coincident", 9, 2, 10, 1))
sketch3.addConstraint(Sketcher.Constraint("Coincident", 10, 2, 11, 1))
sketch3.addConstraint(Sketcher.Constraint("Coincident", 11, 2, 8, 1))
sketch3.addConstraint(Sketcher.Constraint("Coincident", 12, 2, 13, 1))
sketch3.addConstraint(Sketcher.Constraint("Coincident", 13, 2, 14, 1))
sketch3.addConstraint(Sketcher.Constraint("Coincident", 14, 2, 15, 1))
sketch3.addConstraint(Sketcher.Constraint("Coincident", 15, 2, 12, 1))
sketch3.addConstraint(Sketcher.Constraint("Coincident", 16, 2, 17, 1))
sketch3.addConstraint(Sketcher.Constraint("Coincident", 17, 2, 18, 1))
sketch3.addConstraint(Sketcher.Constraint("Coincident", 18, 2, 19, 1))
sketch3.addConstraint(Sketcher.Constraint("Coincident", 19, 2, 16, 1))
sketch3.addConstraint(Sketcher.Constraint("Coincident", 20, 2, 21, 1))
sketch3.addConstraint(Sketcher.Constraint("Coincident", 21, 2, 22, 1))
sketch3.addConstraint(Sketcher.Constraint("Coincident", 22, 2, 23, 1))
sketch3.addConstraint(Sketcher.Constraint("Coincident", 23, 2, 20, 1))
sketch3.addConstraint(Sketcher.Constraint("Vertical", 0))
sketch3.addConstraint(Sketcher.Constraint("Horizontal", 1))
sketch3.addConstraint(Sketcher.Constraint("Vertical", 2))
sketch3.addConstraint(Sketcher.Constraint("Horizontal", 3))
sketch3.addConstraint(Sketcher.Constraint("Vertical", 4))
sketch3.addConstraint(Sketcher.Constraint("Horizontal", 5))
sketch3.addConstraint(Sketcher.Constraint("Vertical", 6))
sketch3.addConstraint(Sketcher.Constraint("Horizontal", 7))
sketch3.addConstraint(Sketcher.Constraint("Vertical", 8))
sketch3.addConstraint(Sketcher.Constraint("Horizontal", 9))
sketch3.addConstraint(Sketcher.Constraint("Vertical", 10))
sketch3.addConstraint(Sketcher.Constraint("Horizontal", 11))
sketch3.addConstraint(Sketcher.Constraint("Vertical", 12))
sketch3.addConstraint(Sketcher.Constraint("Horizontal", 13))
sketch3.addConstraint(Sketcher.Constraint("Vertical", 14))
sketch3.addConstraint(Sketcher.Constraint("Horizontal", 15))
sketch3.addConstraint(Sketcher.Constraint("Vertical", 16))
sketch3.addConstraint(Sketcher.Constraint("Horizontal", 17))
sketch3.addConstraint(Sketcher.Constraint("Vertical", 18))
sketch3.addConstraint(Sketcher.Constraint("Horizontal", 19))
sketch3.addConstraint(Sketcher.Constraint("Vertical", 20))
sketch3.addConstraint(Sketcher.Constraint("Horizontal", 21))
sketch3.addConstraint(Sketcher.Constraint("Vertical", 22))
sketch3.addConstraint(Sketcher.Constraint("Horizontal", 23))
sketch3.addConstraint(Sketcher.Constraint("Horizontal", 1, 2, 4, 2))
sketch3.addConstraint(Sketcher.Constraint("Horizontal", 3, 2, 6, 2))
sketch3.addConstraint(Sketcher.Constraint("Horizontal", 5, 2, 8, 2))
sketch3.addConstraint(Sketcher.Constraint("Horizontal", 7, 2, 10, 2))
sketch3.addConstraint(Sketcher.Constraint("Horizontal", 13, 2, 16, 2))
sketch3.addConstraint(Sketcher.Constraint("Horizontal", 15, 2, 18, 2))
sketch3.addConstraint(Sketcher.Constraint("Horizontal", 17, 2, 20, 2))
sketch3.addConstraint(Sketcher.Constraint("Horizontal", 19, 2, 22, 2))
sketch3.addConstraint(Sketcher.Constraint("Vertical", 11, 2, 12, 2))
sketch3.addConstraint(Sketcher.Constraint("Vertical", 10, 2, 13, 2))
sketch3.addConstraint(Sketcher.Constraint("Vertical", 7, 2, 16, 2))
sketch3.addConstraint(Sketcher.Constraint("Vertical", 6, 2, 17, 2))
sketch3.addConstraint(Sketcher.Constraint("Vertical", 3, 2, 20, 2))
sketch3.addConstraint(Sketcher.Constraint("Vertical", 2, 2, 21, 2))
sketch3.addConstraint(Sketcher.Constraint("Equal", 3, 5))
sketch3.addConstraint(Sketcher.Constraint("Equal", 7, 9))
sketch3.addConstraint(Sketcher.Constraint("Equal", 10, 12))
sketch3.addConstraint(Sketcher.Constraint("DistanceX", 1, 1, 1, 2, 15.0))
sketch3.addConstraint(Sketcher.Constraint("DistanceY", 0, 2, 0, 1, 2.5))
sketch3.addConstraint(Sketcher.Constraint("DistanceX", 1, 2, 4, 2, 22.0))
sketch3.addConstraint(Sketcher.Constraint("DistanceX", 5, 2, 8, 2, 22.0))
sketch3.addConstraint(Sketcher.Constraint("DistanceY", 12, 2, 11, 2, 36.0))
sketch3.addConstraint(Sketcher.Constraint("DistanceX", 0, 2, -1, 1, 1.5))
sketch3.addConstraint(Sketcher.Constraint("DistanceY", -1, 1, 0, 2, 27.7))
pad3 = body.newObject("PartDesign::Pad", "Pad002")
pad3.Profile = sketch3
pad3.Length = 2

# Sketch on XY plane
sketch4 = body.newObject("Sketcher::SketchObject", "Sketch003")
sketch4.AttachmentSupport = (doc.getObject("XY_Plane"), [""])
sketch4.MapMode = "FlatFace"
sketch4.addGeometry(Part.LineSegment(V(-1.5, 27.7, 0), V(-3.5, 27.7, 0)), False)
sketch4.addGeometry(Part.ArcOfCircle(Part.Circle(V(-2.5, 27.7, 0), V(0, 0, 1), 1), math.radians(180), math.radians(360)), False)
sketch4.addGeometry(Part.LineSegment(V(15.5, 27.7, 0), V(13.5, 27.7, 0)), False)
sketch4.addGeometry(Part.ArcOfCircle(Part.Circle(V(14.5, 27.7, 0), V(0, 0, 1), 1), math.radians(180), math.radians(360)), False)
sketch4.addGeometry(Part.LineSegment(V(35.5, 27.7, 0), V(33.5, 27.7, 0)), False)
sketch4.addGeometry(Part.ArcOfCircle(Part.Circle(V(34.5, 27.7, 0), V(0, 0, 1), 1), math.radians(180), math.radians(360)), False)
sketch4.addGeometry(Part.LineSegment(V(52.5, 27.7, 0), V(50.5, 27.7, 0)), False)
sketch4.addGeometry(Part.ArcOfCircle(Part.Circle(V(51.5, 27.7, 0), V(0, 0, 1), 1), math.radians(180), math.radians(360)), False)
sketch4.addGeometry(Part.LineSegment(V(72.5, 27.7, 0), V(70.5, 27.7, 0)), False)
sketch4.addGeometry(Part.ArcOfCircle(Part.Circle(V(71.5, 27.7, 0), V(0, 0, 1), 1), math.radians(180), math.radians(360)), False)
sketch4.addGeometry(Part.LineSegment(V(89.5, 27.7, 0), V(87.5, 27.7, 0)), False)
sketch4.addGeometry(Part.ArcOfCircle(Part.Circle(V(88.5, 27.7, 0), V(0, 0, 1), 1), math.radians(180), math.radians(360)), False)
sketch4.addGeometry(Part.LineSegment(V(87.5, -3.3, 0), V(89.5, -3.3, 0)), False)
sketch4.addGeometry(Part.ArcOfCircle(Part.Circle(V(88.5, -3.3, 0), V(0, 0, 1), 1), math.radians(0), math.radians(180)), False)
sketch4.addGeometry(Part.LineSegment(V(70.5, -3.3, 0), V(72.5, -3.3, 0)), False)
sketch4.addGeometry(Part.ArcOfCircle(Part.Circle(V(71.5, -3.3, 0), V(0, 0, 1), 1), math.radians(0), math.radians(180)), False)
sketch4.addGeometry(Part.LineSegment(V(50.5, -3.3, 0), V(52.5, -3.3, 0)), False)
sketch4.addGeometry(Part.ArcOfCircle(Part.Circle(V(51.5, -3.3, 0), V(0, 0, 1), 1), math.radians(0), math.radians(180)), False)
sketch4.addGeometry(Part.LineSegment(V(33.5, -3.3, 0), V(35.5, -3.3, 0)), False)
sketch4.addGeometry(Part.ArcOfCircle(Part.Circle(V(34.5, -3.3, 0), V(0, 0, 1), 1), math.radians(0), math.radians(180)), False)
sketch4.addGeometry(Part.LineSegment(V(13.5, -3.3, 0), V(15.5, -3.3, 0)), False)
sketch4.addGeometry(Part.ArcOfCircle(Part.Circle(V(14.5, -3.3, 0), V(0, 0, 1), 1), math.radians(0), math.radians(180)), False)
sketch4.addGeometry(Part.LineSegment(V(-3.5, -3.3, 0), V(-1.5, -3.3, 0)), False)
sketch4.addGeometry(Part.ArcOfCircle(Part.Circle(V(-2.5, -3.3, 0), V(0, 0, 1), 1), math.radians(0), math.radians(180)), False)
sketch4.addConstraint(Sketcher.Constraint("Coincident", 0, 1, 1, 2))
sketch4.addConstraint(Sketcher.Constraint("Coincident", 1, 1, 0, 2))
sketch4.addConstraint(Sketcher.Constraint("Coincident", 2, 1, 3, 2))
sketch4.addConstraint(Sketcher.Constraint("Coincident", 3, 1, 2, 2))
sketch4.addConstraint(Sketcher.Constraint("Coincident", 4, 1, 5, 2))
sketch4.addConstraint(Sketcher.Constraint("Coincident", 5, 1, 4, 2))
sketch4.addConstraint(Sketcher.Constraint("Coincident", 6, 1, 7, 2))
sketch4.addConstraint(Sketcher.Constraint("Coincident", 7, 1, 6, 2))
sketch4.addConstraint(Sketcher.Constraint("Coincident", 8, 1, 9, 2))
sketch4.addConstraint(Sketcher.Constraint("Coincident", 9, 1, 8, 2))
sketch4.addConstraint(Sketcher.Constraint("Coincident", 10, 1, 11, 2))
sketch4.addConstraint(Sketcher.Constraint("Coincident", 11, 1, 10, 2))
sketch4.addConstraint(Sketcher.Constraint("Coincident", 12, 1, 13, 2))
sketch4.addConstraint(Sketcher.Constraint("Coincident", 13, 1, 12, 2))
sketch4.addConstraint(Sketcher.Constraint("Coincident", 14, 1, 15, 2))
sketch4.addConstraint(Sketcher.Constraint("Coincident", 15, 1, 14, 2))
sketch4.addConstraint(Sketcher.Constraint("Coincident", 16, 1, 17, 2))
sketch4.addConstraint(Sketcher.Constraint("Coincident", 17, 1, 16, 2))
sketch4.addConstraint(Sketcher.Constraint("Coincident", 18, 1, 19, 2))
sketch4.addConstraint(Sketcher.Constraint("Coincident", 19, 1, 18, 2))
sketch4.addConstraint(Sketcher.Constraint("Coincident", 20, 1, 21, 2))
sketch4.addConstraint(Sketcher.Constraint("Coincident", 21, 1, 20, 2))
sketch4.addConstraint(Sketcher.Constraint("Coincident", 22, 1, 23, 2))
sketch4.addConstraint(Sketcher.Constraint("Coincident", 23, 1, 22, 2))
sketch4.addConstraint(Sketcher.Constraint("Horizontal", 0))
sketch4.addConstraint(Sketcher.Constraint("Horizontal", 2))
sketch4.addConstraint(Sketcher.Constraint("Horizontal", 4))
sketch4.addConstraint(Sketcher.Constraint("Horizontal", 6))
sketch4.addConstraint(Sketcher.Constraint("Horizontal", 8))
sketch4.addConstraint(Sketcher.Constraint("Horizontal", 10))
sketch4.addConstraint(Sketcher.Constraint("Horizontal", 12))
sketch4.addConstraint(Sketcher.Constraint("Horizontal", 14))
sketch4.addConstraint(Sketcher.Constraint("Horizontal", 16))
sketch4.addConstraint(Sketcher.Constraint("Horizontal", 18))
sketch4.addConstraint(Sketcher.Constraint("Horizontal", 20))
sketch4.addConstraint(Sketcher.Constraint("Horizontal", 22))
sketch4.addConstraint(Sketcher.Constraint("Equal", 1, 3))
sketch4.addConstraint(Sketcher.Constraint("Equal", 3, 5))
sketch4.addConstraint(Sketcher.Constraint("Equal", 5, 7))
sketch4.addConstraint(Sketcher.Constraint("Equal", 7, 9))
sketch4.addConstraint(Sketcher.Constraint("Equal", 9, 11))
sketch4.addConstraint(Sketcher.Constraint("Equal", 11, 13))
sketch4.addConstraint(Sketcher.Constraint("Equal", 13, 15))
sketch4.addConstraint(Sketcher.Constraint("Equal", 15, 17))
sketch4.addConstraint(Sketcher.Constraint("Equal", 17, 19))
sketch4.addConstraint(Sketcher.Constraint("Equal", 19, 21))
sketch4.addConstraint(Sketcher.Constraint("Equal", 21, 23))
sketch4.addConstraint(Sketcher.Constraint("Horizontal", 1, 3, 3, 3))
sketch4.addConstraint(Sketcher.Constraint("Horizontal", 3, 3, 5, 3))
sketch4.addConstraint(Sketcher.Constraint("Horizontal", 5, 3, 7, 3))
sketch4.addConstraint(Sketcher.Constraint("Horizontal", 7, 3, 9, 3))
sketch4.addConstraint(Sketcher.Constraint("Horizontal", 9, 3, 11, 3))
sketch4.addConstraint(Sketcher.Constraint("Horizontal", 13, 3, 15, 3))
sketch4.addConstraint(Sketcher.Constraint("Horizontal", 15, 3, 17, 3))
sketch4.addConstraint(Sketcher.Constraint("Horizontal", 17, 3, 19, 3))
sketch4.addConstraint(Sketcher.Constraint("Horizontal", 19, 3, 21, 3))
sketch4.addConstraint(Sketcher.Constraint("Horizontal", 21, 3, 23, 3))
sketch4.addConstraint(Sketcher.Constraint("Horizontal", 11, 3, 0, 1))
sketch4.addConstraint(Sketcher.Constraint("Horizontal", 1, 1, 2, 1))
sketch4.addConstraint(Sketcher.Constraint("Horizontal", 3, 1, 4, 1))
sketch4.addConstraint(Sketcher.Constraint("Horizontal", 5, 1, 6, 1))
sketch4.addConstraint(Sketcher.Constraint("Horizontal", 7, 1, 8, 1))
sketch4.addConstraint(Sketcher.Constraint("Horizontal", 9, 1, 10, 1))
sketch4.addConstraint(Sketcher.Constraint("Horizontal", 23, 3, 12, 1))
sketch4.addConstraint(Sketcher.Constraint("Horizontal", 13, 1, 14, 1))
sketch4.addConstraint(Sketcher.Constraint("Horizontal", 15, 1, 16, 1))
sketch4.addConstraint(Sketcher.Constraint("Horizontal", 17, 1, 18, 1))
sketch4.addConstraint(Sketcher.Constraint("Horizontal", 19, 1, 20, 1))
sketch4.addConstraint(Sketcher.Constraint("Horizontal", 21, 1, 22, 1))
sketch4.addConstraint(Sketcher.Constraint("Vertical", 11, 3, 13, 3))
sketch4.addConstraint(Sketcher.Constraint("Vertical", 9, 3, 15, 3))
sketch4.addConstraint(Sketcher.Constraint("Vertical", 7, 3, 17, 3))
sketch4.addConstraint(Sketcher.Constraint("Vertical", 5, 3, 19, 3))
sketch4.addConstraint(Sketcher.Constraint("Vertical", 3, 3, 21, 3))
sketch4.addConstraint(Sketcher.Constraint("Vertical", 1, 3, 23, 3))
sketch4.addConstraint(Sketcher.Constraint("Radius", 1, 1.0))
sketch4.addConstraint(Sketcher.Constraint("DistanceX", 1, 3, 3, 3, 17.0))
sketch4.addConstraint(Sketcher.Constraint("DistanceX", 3, 3, 5, 3, 20.0))
sketch4.addConstraint(Sketcher.Constraint("DistanceX", 5, 3, 7, 3, 17.0))
sketch4.addConstraint(Sketcher.Constraint("DistanceX", 7, 3, 9, 3, 20.0))
sketch4.addConstraint(Sketcher.Constraint("DistanceX", 9, 3, 11, 3, 17.0))
sketch4.addConstraint(Sketcher.Constraint("DistanceY", 13, 3, 11, 3, 31.0))
sketch4.addConstraint(Sketcher.Constraint("DistanceX", 1, 3, -1, 1, 2.5))
sketch4.addConstraint(Sketcher.Constraint("DistanceY", -1, 1, 1, 3, 27.7))
pocket1 = body.newObject("PartDesign::Pocket", "Pocket")
pocket1.Profile = sketch4
pocket1.Length = 2
pocket1.Reversed = True

doc.recompute()
